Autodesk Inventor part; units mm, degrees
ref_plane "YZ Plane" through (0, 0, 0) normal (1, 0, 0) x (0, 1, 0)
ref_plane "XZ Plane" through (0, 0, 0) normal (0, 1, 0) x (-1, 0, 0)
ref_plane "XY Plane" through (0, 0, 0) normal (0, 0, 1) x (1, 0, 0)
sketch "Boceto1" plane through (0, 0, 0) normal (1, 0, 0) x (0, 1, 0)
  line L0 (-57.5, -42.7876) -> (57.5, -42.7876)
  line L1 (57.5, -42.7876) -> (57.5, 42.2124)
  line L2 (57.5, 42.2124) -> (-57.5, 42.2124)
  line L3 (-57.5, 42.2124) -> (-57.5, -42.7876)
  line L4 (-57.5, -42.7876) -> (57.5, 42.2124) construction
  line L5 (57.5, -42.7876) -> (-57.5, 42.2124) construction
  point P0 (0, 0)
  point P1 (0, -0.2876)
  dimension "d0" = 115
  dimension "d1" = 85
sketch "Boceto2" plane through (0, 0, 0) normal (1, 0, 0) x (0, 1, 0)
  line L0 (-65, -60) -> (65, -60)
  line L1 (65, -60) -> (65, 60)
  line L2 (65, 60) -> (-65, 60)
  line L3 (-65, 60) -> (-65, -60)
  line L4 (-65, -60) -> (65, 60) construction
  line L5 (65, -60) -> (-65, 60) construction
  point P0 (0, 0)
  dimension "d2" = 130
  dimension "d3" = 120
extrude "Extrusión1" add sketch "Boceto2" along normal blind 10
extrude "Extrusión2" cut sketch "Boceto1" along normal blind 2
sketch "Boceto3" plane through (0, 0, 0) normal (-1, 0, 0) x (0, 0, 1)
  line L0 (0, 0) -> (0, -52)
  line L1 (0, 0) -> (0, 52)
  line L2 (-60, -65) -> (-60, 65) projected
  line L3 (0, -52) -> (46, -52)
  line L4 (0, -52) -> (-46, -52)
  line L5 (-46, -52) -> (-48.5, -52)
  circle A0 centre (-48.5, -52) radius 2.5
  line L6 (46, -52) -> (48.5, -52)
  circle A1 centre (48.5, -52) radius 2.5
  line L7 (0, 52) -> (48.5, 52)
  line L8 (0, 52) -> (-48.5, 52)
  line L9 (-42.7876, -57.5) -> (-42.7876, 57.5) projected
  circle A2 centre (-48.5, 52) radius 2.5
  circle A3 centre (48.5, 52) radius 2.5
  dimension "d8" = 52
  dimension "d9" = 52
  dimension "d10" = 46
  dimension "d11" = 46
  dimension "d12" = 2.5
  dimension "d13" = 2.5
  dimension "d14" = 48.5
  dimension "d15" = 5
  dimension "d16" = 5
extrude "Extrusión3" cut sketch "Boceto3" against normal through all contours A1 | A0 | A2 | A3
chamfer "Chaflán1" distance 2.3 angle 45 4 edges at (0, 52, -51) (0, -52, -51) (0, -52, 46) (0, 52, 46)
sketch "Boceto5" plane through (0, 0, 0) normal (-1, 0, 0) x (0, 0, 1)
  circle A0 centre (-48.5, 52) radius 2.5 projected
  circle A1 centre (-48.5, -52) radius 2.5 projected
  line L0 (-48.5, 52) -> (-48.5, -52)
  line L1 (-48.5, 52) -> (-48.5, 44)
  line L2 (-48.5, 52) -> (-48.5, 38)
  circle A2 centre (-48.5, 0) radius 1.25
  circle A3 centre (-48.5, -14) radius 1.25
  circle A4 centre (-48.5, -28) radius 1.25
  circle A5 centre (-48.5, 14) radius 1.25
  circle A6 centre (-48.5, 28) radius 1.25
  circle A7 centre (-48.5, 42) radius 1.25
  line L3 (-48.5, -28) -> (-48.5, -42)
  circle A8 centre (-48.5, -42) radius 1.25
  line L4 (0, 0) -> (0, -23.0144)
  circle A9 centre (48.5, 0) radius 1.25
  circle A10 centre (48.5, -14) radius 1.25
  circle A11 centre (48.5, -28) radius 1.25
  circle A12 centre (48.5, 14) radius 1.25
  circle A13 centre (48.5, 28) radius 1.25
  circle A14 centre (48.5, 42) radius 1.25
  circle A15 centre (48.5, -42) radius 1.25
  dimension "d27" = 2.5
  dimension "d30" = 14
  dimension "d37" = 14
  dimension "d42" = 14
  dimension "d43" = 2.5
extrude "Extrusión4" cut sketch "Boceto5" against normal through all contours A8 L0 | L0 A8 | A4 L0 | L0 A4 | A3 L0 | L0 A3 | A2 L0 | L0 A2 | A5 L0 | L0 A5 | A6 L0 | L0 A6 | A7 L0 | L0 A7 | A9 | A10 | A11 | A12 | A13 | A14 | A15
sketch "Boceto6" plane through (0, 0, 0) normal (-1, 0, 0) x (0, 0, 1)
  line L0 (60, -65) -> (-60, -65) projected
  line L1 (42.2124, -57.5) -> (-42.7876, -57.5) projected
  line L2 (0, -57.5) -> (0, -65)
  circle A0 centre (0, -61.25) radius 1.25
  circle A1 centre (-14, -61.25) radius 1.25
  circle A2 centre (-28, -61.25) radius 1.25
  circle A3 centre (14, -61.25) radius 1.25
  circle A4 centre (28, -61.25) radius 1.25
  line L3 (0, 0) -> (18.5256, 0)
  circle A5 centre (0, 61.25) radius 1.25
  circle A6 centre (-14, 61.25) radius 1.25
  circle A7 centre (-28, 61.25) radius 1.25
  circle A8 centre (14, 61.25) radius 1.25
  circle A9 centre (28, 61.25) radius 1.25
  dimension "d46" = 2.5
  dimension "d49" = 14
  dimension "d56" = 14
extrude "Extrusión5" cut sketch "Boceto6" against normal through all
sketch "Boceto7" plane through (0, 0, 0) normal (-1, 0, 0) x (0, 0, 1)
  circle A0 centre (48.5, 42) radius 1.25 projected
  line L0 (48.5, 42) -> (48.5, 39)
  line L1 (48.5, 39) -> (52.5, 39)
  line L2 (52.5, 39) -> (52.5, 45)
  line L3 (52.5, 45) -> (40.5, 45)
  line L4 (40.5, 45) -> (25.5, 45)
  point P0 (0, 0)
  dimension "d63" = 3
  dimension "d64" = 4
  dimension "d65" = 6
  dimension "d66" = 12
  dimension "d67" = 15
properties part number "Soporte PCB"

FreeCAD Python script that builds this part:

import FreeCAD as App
import Part
import Sketcher
from FreeCAD import Vector


def edges_at(feature, points):
    """Names of the edges that pass closest to the given points."""
    edges = feature.Shape.Edges
    near = lambda p: min(range(len(edges)), key=lambda i: edges[i].distToShape(Part.Vertex(*p))[0])
    return sorted({f"Edge{near(p) + 1}" for p in points})


def add_polygon(sketch, points):
    """Adds a closed chain of lines whose ends are joined by coincident constraints."""
    first, n = sketch.GeometryCount, len(points)
    for a, b in zip(points, points[1:] + points[:1]):
        sketch.addGeometry(Part.LineSegment(App.Vector(*a, 0), App.Vector(*b, 0)), False)
    for i in range(n):
        sketch.addConstraint(Sketcher.Constraint("Coincident", first + i, 2, first + (i + 1) % n, 1))

doc = App.newDocument("Part")
body = doc.addObject("PartDesign::Body", "Body")

sketch1 = body.newObject("Sketcher::SketchObject", "Sketch")
sketch1.AttachmentSupport = (doc.getObject("YZ_Plane"), [""])
sketch1.MapMode = "FlatFace"
add_polygon(sketch1, [(-65, 60), (-65, -60), (65, -60), (65, 60)])
sketch1.addConstraint([
    Sketcher.Constraint("Vertical", 0),
    Sketcher.Constraint("Horizontal", 1),
    Sketcher.Constraint("Vertical", 2),
    Sketcher.Constraint("Horizontal", 3),
    Sketcher.Constraint("Symmetric", 0, 2, 2, 2, -1, 1),
    Sketcher.Constraint("DistanceX", 1, 1, 1, 2, 130.0),
    Sketcher.Constraint("DistanceY", 0, 2, 0, 1, 120.0),
])
pad1 = body.newObject("PartDesign::Pad", "Pad")
pad1.Profile = sketch1
pad1.Length = 10

sketch2 = body.newObject("Sketcher::SketchObject", "Sketch001")
sketch2.AttachmentSupport = (doc.getObject("YZ_Plane"), [""])
sketch2.MapMode = "FlatFace"
add_polygon(sketch2, [(-57.5, 42.2124), (-57.5, -42.7876), (57.5, -42.7876), (57.5, 42.2124)])
sketch2.addConstraint([
    Sketcher.Constraint("Vertical", 0),
    Sketcher.Constraint("Horizontal", 1),
    Sketcher.Constraint("Vertical", 2),
    Sketcher.Constraint("Horizontal", 3),
    Sketcher.Constraint("DistanceX", 1, 1, 1, 2, 115.0),
    Sketcher.Constraint("DistanceY", 0, 2, 0, 1, 85.0),
    Sketcher.Constraint("DistanceX", 0, 2, -1, 1, 57.5),
    Sketcher.Constraint("DistanceY", 0, 2, -1, 1, 42.7876),
])
pocket1 = body.newObject("PartDesign::Pocket", "Pocket")
pocket1.Profile = sketch2
pocket1.Length = 2
pocket1.Reversed = True

sketch3 = body.newObject("Sketcher::SketchObject", "Sketch002")
sketch3.AttachmentSupport = (doc.getObject("YZ_Plane"), [""])
sketch3.MapMode = "FlatFace"
sketch3.addGeometry([
    Part.Circle(Vector(-52, 48.5, 0), Vector(0, 0, 1), 2.5),
    Part.Circle(Vector(-52, -48.5, 0), Vector(0, 0, 1), 2.5),
    Part.Circle(Vector(52, -48.5, 0), Vector(0, 0, 1), 2.5),
    Part.Circle(Vector(52, 48.5, 0), Vector(0, 0, 1), 2.5),
], False)
sketch3.addConstraint([
    Sketcher.Constraint("Equal", 0, 1),
    Sketcher.Constraint("Equal", 1, 2),
    Sketcher.Constraint("Equal", 2, 3),
    Sketcher.Constraint("Symmetric", 0, 3, 2, 3, -1, 1),
    Sketcher.Constraint("Symmetric", 1, 3, 3, 3, -1, 1),
    Sketcher.Constraint("Symmetric", 1, 3, 2, 3, -2),
    Sketcher.Constraint("Diameter", 0, 5.0),
    Sketcher.Constraint("DistanceX", 0, 3, -1, 1, 52.0),
    Sketcher.Constraint("DistanceY", -1, 1, 0, 3, 48.5),
])
pocket2 = body.newObject("PartDesign::Pocket", "Pocket001")
pocket2.Profile = sketch3
pocket2.Type = "ThroughAll"
pocket2.Reversed = True
doc.recompute()

chamfer = body.newObject("PartDesign::Chamfer", "Chamfer")
chamfer.Base = (pocket2, edges_at(pocket2, [
    (0, 52, -51),
    (0, -52, -51),
    (0, -52, 46),
    (0, 52, 46),
]))
chamfer.Size = 2.3

sketch4 = body.newObject("Sketcher::SketchObject", "Sketch003")
sketch4.AttachmentSupport = (doc.getObject("YZ_Plane"), [""])
sketch4.MapMode = "FlatFace"
sketch4.addGeometry([
    Part.Circle(Vector(-42, -48.5, 0), Vector(0, 0, 1), 1.25),
    Part.Circle(Vector(-28, -48.5, 0), Vector(0, 0, 1), 1.25),
    Part.Circle(Vector(-14, -48.5, 0), Vector(0, 0, 1), 1.25),
    Part.Circle(Vector(0, -48.5, 0), Vector(0, 0, 1), 1.25),
    Part.Circle(Vector(14, -48.5, 0), Vector(0, 0, 1), 1.25),
    Part.Circle(Vector(28, -48.5, 0), Vector(0, 0, 1), 1.25),
    Part.Circle(Vector(42, -48.5, 0), Vector(0, 0, 1), 1.25),
    Part.Circle(Vector(0, 48.5, 0), Vector(0, 0, 1), 1.25),
    Part.Circle(Vector(-14, 48.5, 0), Vector(0, 0, 1), 1.25),
    Part.Circle(Vector(-28, 48.5, 0), Vector(0, 0, 1), 1.25),
    Part.Circle(Vector(14, 48.5, 0), Vector(0, 0, 1), 1.25),
    Part.Circle(Vector(28, 48.5, 0), Vector(0, 0, 1), 1.25),
    Part.Circle(Vector(42, 48.5, 0), Vector(0, 0, 1), 1.25),
    Part.Circle(Vector(-42, 48.5, 0), Vector(0, 0, 1), 1.25),
], False)
sketch4.addConstraint([
    Sketcher.Constraint("Equal", 0, 1),
    Sketcher.Constraint("Equal", 1, 2),
    Sketcher.Constraint("Equal", 2, 3),
    Sketcher.Constraint("Equal", 3, 4),
    Sketcher.Constraint("Equal", 4, 5),
    Sketcher.Constraint("Equal", 5, 6),
    Sketcher.Constraint("Equal", 6, 7),
    Sketcher.Constraint("Equal", 7, 8),
    Sketcher.Constraint("Equal", 8, 9),
    Sketcher.Constraint("Equal", 9, 10),
    Sketcher.Constraint("Equal", 10, 11),
    Sketcher.Constraint("Equal", 11, 12),
    Sketcher.Constraint("Equal", 12, 13),
    Sketcher.Constraint("Symmetric", 3, 3, 7, 3, -1, 1),
    Sketcher.Constraint("Symmetric", 4, 3, 8, 3, -1, 1),
    Sketcher.Constraint("Symmetric", 5, 3, 9, 3, -1, 1),
    Sketcher.Constraint("Symmetric", 2, 3, 10, 3, -1, 1),
    Sketcher.Constraint("Symmetric", 1, 3, 11, 3, -1, 1),
    Sketcher.Constraint("Symmetric", 0, 3, 12, 3, -1, 1),
    Sketcher.Constraint("Symmetric", 6, 3, 13, 3, -1, 1),
    Sketcher.Constraint("Symmetric", 2, 3, 4, 3, -2),
    Sketcher.Constraint("Symmetric", 1, 3, 5, 3, -2),
    Sketcher.Constraint("Symmetric", 0, 3, 6, 3, -2),
    Sketcher.Constraint("PointOnObject", 3, 3, -2),
    Sketcher.Constraint("Horizontal", 0, 3, 1, 3),
    Sketcher.Constraint("Horizontal", 1, 3, 2, 3),
    Sketcher.Constraint("Horizontal", 2, 3, 3, 3),
    Sketcher.Constraint("Diameter", 0, 2.5),
    Sketcher.Constraint("DistanceX", 2, 3, -1, 1, 14.0),
    Sketcher.Constraint("DistanceX", 0, 3, 1, 3, 14.0),
    Sketcher.Constraint("DistanceX", 1, 3, 2, 3, 14.0),
    Sketcher.Constraint("DistanceY", 3, 3, 7, 3, 97.0),
])
pocket3 = body.newObject("PartDesign::Pocket", "Pocket002")
pocket3.Profile = sketch4
pocket3.Type = "ThroughAll"
pocket3.Reversed = True

sketch5 = body.newObject("Sketcher::SketchObject", "Sketch004")
sketch5.AttachmentSupport = (doc.getObject("YZ_Plane"), [""])
sketch5.MapMode = "FlatFace"
sketch5.addGeometry([
    Part.Circle(Vector(-61.25, 0, 0), Vector(0, 0, 1), 1.25),
    Part.Circle(Vector(-61.25, -14, 0), Vector(0, 0, 1), 1.25),
    Part.Circle(Vector(-61.25, -28, 0), Vector(0, 0, 1), 1.25),
    Part.Circle(Vector(-61.25, 14, 0), Vector(0, 0, 1), 1.25),
    Part.Circle(Vector(-61.25, 28, 0), Vector(0, 0, 1), 1.25),
    Part.Circle(Vector(61.25, 0, 0), Vector(0, 0, 1), 1.25),
    Part.Circle(Vector(61.25, -14, 0), Vector(0, 0, 1), 1.25),
    Part.Circle(Vector(61.25, -28, 0), Vector(0, 0, 1), 1.25),
    Part.Circle(Vector(61.25, 14, 0), Vector(0, 0, 1), 1.25),
    Part.Circle(Vector(61.25, 28, 0), Vector(0, 0, 1), 1.25),
], False)
sketch5.addConstraint([
    Sketcher.Constraint("Equal", 0, 1),
    Sketcher.Constraint("Equal", 1, 2),
    Sketcher.Constraint("Equal", 2, 3),
    Sketcher.Constraint("Equal", 3, 4),
    Sketcher.Constraint("Equal", 4, 5),
    Sketcher.Constraint("Equal", 5, 6),
    Sketcher.Constraint("Equal", 6, 7),
    Sketcher.Constraint("Equal", 7, 8),
    Sketcher.Constraint("Equal", 8, 9),
    Sketcher.Constraint("Symmetric", 0, 3, 5, 3, -1, 1),
    Sketcher.Constraint("Symmetric", 3, 3, 6, 3, -1, 1),
    Sketcher.Constraint("Symmetric", 4, 3, 7, 3, -1, 1),
    Sketcher.Constraint("Symmetric", 1, 3, 8, 3, -1, 1),
    Sketcher.Constraint("Symmetric", 2, 3, 9, 3, -1, 1),
    Sketcher.Constraint("Symmetric", 1, 3, 6, 3, -2),
    Sketcher.Constraint("Symmetric", 2, 3, 7, 3, -2),
    Sketcher.Constraint("PointOnObject", 0, 3, -1),
    Sketcher.Constraint("Vertical", 0, 3, 1, 3),
    Sketcher.Constraint("Vertical", 1, 3, 2, 3),
    Sketcher.Constraint("Diameter", 0, 2.5),
    Sketcher.Constraint("DistanceY", 1, 3, -1, 1, 14.0),
    Sketcher.Constraint("DistanceY", 2, 3, 1, 3, 14.0),
    Sketcher.Constraint("DistanceX", 0, 3, 5, 3, 122.5),
])
pocket4 = body.newObject("PartDesign::Pocket", "Pocket003")
pocket4.Profile = sketch5
pocket4.Type = "ThroughAll"
pocket4.Reversed = True

doc.recompute()
